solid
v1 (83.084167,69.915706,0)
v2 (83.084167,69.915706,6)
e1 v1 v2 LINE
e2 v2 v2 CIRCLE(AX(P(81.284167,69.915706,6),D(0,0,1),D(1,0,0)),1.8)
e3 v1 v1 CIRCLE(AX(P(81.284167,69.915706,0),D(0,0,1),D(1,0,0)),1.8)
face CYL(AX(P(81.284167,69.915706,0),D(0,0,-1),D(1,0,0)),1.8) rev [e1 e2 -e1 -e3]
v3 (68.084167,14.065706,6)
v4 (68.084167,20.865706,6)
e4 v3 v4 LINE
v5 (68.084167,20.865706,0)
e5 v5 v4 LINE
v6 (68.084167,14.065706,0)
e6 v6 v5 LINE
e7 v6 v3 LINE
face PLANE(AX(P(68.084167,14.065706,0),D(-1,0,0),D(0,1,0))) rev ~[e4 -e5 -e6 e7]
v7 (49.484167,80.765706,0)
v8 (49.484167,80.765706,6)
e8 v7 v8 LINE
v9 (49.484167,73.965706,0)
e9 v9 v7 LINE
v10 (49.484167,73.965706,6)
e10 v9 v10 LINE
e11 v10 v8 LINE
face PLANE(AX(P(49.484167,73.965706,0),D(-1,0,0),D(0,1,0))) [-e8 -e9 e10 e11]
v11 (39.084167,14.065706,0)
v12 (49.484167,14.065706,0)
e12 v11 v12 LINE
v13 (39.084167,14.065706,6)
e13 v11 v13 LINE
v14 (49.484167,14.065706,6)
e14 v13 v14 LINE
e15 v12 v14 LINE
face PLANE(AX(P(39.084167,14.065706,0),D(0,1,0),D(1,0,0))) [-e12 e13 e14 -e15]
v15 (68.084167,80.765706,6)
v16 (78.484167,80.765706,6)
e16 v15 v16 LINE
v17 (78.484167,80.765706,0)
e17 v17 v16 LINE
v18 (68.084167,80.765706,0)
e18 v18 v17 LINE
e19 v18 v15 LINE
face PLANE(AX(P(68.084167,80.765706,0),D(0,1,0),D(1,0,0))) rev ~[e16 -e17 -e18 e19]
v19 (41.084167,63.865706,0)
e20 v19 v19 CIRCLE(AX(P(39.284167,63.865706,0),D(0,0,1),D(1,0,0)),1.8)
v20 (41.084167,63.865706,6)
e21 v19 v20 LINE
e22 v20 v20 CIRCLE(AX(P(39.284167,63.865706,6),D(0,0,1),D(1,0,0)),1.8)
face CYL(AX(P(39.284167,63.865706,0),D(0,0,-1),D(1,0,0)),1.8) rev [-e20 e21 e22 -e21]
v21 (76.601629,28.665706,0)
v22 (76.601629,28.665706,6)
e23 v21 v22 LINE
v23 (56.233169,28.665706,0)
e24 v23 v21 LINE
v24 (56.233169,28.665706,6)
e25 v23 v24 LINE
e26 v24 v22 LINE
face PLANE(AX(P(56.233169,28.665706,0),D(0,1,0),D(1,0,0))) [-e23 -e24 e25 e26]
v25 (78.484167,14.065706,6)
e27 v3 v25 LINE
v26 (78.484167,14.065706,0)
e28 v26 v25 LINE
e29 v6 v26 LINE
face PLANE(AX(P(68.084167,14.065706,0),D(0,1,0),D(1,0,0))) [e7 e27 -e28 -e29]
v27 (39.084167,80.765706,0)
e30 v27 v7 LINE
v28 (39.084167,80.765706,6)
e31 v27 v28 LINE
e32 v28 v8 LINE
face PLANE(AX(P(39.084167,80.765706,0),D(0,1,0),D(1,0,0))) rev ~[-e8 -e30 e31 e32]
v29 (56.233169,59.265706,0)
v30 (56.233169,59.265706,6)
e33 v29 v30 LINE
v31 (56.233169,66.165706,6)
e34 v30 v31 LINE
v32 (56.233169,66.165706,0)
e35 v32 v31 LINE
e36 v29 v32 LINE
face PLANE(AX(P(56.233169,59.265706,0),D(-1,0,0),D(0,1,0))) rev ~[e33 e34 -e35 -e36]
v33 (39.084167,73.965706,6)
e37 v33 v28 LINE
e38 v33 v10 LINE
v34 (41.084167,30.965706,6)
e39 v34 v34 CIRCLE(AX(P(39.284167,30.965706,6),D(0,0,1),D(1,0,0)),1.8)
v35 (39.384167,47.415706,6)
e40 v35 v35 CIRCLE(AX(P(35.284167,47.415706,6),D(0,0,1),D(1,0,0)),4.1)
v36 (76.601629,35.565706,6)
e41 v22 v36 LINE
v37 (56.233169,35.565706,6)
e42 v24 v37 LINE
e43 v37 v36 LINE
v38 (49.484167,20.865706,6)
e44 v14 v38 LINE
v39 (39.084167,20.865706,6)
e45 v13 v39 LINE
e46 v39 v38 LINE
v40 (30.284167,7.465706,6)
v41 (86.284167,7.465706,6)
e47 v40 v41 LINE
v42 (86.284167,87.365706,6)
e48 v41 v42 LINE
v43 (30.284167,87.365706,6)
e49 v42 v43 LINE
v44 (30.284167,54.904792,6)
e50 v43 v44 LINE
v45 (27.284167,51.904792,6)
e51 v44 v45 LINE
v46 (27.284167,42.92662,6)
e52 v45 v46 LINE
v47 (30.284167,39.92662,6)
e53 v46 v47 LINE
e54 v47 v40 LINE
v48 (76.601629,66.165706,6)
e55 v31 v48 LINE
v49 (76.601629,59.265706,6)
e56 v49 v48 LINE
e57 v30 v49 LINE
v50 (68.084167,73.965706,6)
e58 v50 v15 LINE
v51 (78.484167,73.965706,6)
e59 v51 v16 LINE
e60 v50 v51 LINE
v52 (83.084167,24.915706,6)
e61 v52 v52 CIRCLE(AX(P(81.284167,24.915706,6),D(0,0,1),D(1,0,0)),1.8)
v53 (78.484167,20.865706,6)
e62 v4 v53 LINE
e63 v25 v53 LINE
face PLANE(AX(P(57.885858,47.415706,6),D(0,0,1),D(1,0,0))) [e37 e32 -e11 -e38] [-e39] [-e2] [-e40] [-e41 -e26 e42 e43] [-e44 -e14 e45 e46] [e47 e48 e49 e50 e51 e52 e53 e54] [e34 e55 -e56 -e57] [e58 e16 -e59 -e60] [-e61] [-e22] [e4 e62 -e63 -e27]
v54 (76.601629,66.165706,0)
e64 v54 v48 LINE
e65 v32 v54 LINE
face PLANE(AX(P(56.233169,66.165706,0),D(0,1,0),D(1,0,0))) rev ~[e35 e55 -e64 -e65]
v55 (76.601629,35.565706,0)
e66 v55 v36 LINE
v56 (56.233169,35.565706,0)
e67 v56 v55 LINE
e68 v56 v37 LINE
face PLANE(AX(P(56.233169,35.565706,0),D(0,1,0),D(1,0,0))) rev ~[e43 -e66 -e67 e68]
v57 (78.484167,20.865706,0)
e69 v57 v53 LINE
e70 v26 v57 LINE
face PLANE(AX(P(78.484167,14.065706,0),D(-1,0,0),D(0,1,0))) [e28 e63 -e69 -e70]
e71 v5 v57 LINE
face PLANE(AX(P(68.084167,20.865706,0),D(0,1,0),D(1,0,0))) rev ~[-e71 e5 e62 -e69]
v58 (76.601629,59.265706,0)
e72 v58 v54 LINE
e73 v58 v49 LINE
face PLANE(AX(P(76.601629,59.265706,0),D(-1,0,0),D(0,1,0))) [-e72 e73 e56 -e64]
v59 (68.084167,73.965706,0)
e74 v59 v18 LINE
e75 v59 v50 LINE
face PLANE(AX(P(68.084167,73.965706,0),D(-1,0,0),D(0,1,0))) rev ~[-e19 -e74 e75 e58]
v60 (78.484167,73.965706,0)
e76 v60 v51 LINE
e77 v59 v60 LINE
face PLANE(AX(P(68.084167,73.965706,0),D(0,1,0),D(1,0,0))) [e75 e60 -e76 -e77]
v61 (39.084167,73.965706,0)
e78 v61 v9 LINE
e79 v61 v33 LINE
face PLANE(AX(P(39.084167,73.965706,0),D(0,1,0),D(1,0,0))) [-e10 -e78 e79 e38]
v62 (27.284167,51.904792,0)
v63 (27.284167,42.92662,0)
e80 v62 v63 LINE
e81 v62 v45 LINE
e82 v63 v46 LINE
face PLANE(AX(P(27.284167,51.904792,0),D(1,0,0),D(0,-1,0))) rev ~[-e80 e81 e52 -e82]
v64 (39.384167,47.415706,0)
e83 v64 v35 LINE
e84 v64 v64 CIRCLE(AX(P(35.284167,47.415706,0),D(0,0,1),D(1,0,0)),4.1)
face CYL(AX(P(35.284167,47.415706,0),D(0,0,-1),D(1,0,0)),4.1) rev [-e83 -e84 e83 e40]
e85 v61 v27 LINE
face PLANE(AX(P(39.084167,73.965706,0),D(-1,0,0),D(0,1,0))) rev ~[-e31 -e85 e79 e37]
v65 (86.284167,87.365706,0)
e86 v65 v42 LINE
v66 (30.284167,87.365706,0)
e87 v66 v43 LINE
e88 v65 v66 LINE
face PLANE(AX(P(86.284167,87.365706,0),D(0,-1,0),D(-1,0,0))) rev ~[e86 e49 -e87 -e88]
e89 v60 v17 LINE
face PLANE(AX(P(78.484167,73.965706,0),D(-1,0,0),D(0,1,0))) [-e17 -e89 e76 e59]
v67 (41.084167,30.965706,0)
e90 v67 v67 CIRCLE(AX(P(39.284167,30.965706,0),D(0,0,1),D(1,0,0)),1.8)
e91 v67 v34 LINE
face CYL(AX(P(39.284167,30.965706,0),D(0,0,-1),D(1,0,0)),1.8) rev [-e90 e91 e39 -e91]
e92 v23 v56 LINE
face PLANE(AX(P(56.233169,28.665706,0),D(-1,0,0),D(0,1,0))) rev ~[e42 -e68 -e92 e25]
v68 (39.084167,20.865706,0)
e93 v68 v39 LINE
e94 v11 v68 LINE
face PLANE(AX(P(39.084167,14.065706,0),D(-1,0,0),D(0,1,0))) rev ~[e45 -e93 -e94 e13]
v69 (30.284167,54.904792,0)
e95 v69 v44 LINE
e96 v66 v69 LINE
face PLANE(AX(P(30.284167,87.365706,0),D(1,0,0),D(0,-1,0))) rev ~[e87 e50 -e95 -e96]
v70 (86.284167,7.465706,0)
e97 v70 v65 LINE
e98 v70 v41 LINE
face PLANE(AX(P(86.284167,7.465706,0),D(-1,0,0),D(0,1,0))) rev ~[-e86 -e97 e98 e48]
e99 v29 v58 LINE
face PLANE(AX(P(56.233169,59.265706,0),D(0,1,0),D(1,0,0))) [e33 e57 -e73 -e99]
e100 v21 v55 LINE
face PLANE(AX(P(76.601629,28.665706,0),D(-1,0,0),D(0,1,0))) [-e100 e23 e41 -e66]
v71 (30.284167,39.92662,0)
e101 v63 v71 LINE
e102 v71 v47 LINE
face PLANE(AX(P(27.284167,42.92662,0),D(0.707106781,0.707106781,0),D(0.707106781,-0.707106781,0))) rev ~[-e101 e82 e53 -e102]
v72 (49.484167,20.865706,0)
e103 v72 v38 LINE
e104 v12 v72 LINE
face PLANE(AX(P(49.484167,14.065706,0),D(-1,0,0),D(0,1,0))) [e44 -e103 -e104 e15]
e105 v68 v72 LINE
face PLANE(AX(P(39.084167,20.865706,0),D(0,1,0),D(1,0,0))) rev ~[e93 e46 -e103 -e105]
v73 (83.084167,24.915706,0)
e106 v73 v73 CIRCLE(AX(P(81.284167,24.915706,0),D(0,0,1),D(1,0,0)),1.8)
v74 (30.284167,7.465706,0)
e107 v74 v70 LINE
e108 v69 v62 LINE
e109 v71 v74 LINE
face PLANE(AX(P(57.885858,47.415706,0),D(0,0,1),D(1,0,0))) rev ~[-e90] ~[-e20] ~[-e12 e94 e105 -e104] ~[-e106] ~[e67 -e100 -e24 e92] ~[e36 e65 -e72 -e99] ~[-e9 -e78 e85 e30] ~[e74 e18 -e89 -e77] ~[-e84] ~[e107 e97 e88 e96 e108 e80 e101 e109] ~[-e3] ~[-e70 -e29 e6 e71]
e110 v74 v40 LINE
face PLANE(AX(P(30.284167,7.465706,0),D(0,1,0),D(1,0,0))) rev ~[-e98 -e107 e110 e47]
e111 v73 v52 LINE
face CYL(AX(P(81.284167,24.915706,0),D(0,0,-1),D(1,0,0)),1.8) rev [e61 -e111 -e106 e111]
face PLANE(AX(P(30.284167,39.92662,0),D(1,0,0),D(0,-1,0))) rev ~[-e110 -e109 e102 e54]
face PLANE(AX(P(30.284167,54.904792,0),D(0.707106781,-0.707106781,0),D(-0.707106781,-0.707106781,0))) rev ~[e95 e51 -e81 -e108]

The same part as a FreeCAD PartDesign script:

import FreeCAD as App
import Part
import Sketcher
Q = App.Units.Quantity


def add_polygon(sketch, points):
    """Adds a closed chain of lines whose ends are joined by coincident constraints."""
    first, n = sketch.GeometryCount, len(points)
    for a, b in zip(points, points[1:] + points[:1]):
        sketch.addGeometry(Part.LineSegment(App.Vector(*a, 0), App.Vector(*b, 0)), False)
    for i in range(n):
        sketch.addConstraint(Sketcher.Constraint("Coincident", first + i, 2, first + (i + 1) % n, 1))

doc = App.newDocument("Part")
body = doc.addObject("PartDesign::Body", "Body")

sketch1 = body.newObject("Sketcher::SketchObject", "Sketch")
sketch1.AttachmentSupport = (doc.getObject("XY_Plane"), [""])
sketch1.MapMode = "FlatFace"
add_polygon(sketch1, [(86.3, 87.4), (30.3, 87.4), (30.3, 54.9), (27.3, 51.9), (27.3, 42.9), (30.3, 39.9), (30.3, 7.5), (86.3, 7.5)])
add_polygon(sketch1, [(49.5, 14.1), (39.1, 14.1), (39.1, 20.9), (49.5, 20.9)])
sketch1.addGeometry(Part.Circle(App.Vector(39.3, 31, 0), App.Vector(0, 0, 1), 1.8), False)
add_polygon(sketch1, [(78.5, 14.1), (68.1, 14.1), (68.1, 20.9), (78.5, 20.9)])
sketch1.addGeometry(Part.Circle(App.Vector(81.3, 24.9, 0), App.Vector(0, 0, 1), 1.8), False)
add_polygon(sketch1, [(76.6, 28.7), (56.2, 28.7), (56.2, 35.6), (76.6, 35.6)])
sketch1.addGeometry(Part.Circle(App.Vector(35.3, 47.4, 0), App.Vector(0, 0, 1), 4.1), False)
sketch1.addGeometry(Part.Circle(App.Vector(39.3, 63.9, 0), App.Vector(0, 0, 1), 1.8), False)
add_polygon(sketch1, [(49.5, 74), (39.1, 74), (39.1, 80.8), (49.5, 80.8)])
add_polygon(sketch1, [(76.6, 59.3), (56.2, 59.3), (56.2, 66.2), (76.6, 66.2)])
sketch1.addGeometry(Part.Circle(App.Vector(81.3, 69.9, 0), App.Vector(0, 0, 1), 1.8), False)
add_polygon(sketch1, [(78.5, 74), (68.1, 74), (68.1, 80.8), (78.5, 80.8)])
sketch1.addConstraint(Sketcher.Constraint("Horizontal", 0))
sketch1.addConstraint(Sketcher.Constraint("Vertical", 1))
sketch1.addConstraint(Sketcher.Constraint("Vertical", 3))
sketch1.addConstraint(Sketcher.Constraint("Vertical", 5))
sketch1.addConstraint(Sketcher.Constraint("Horizontal", 6))
sketch1.addConstraint(Sketcher.Constraint("Vertical", 7))
sketch1.addConstraint(Sketcher.Constraint("Horizontal", 8))
sketch1.addConstraint(Sketcher.Constraint("Vertical", 9))
sketch1.addConstraint(Sketcher.Constraint("Horizontal", 10))
sketch1.addConstraint(Sketcher.Constraint("Vertical", 11))
sketch1.addConstraint(Sketcher.Constraint("Horizontal", 13))
sketch1.addConstraint(Sketcher.Constraint("Vertical", 14))
sketch1.addConstraint(Sketcher.Constraint("Horizontal", 15))
sketch1.addConstraint(Sketcher.Constraint("Vertical", 16))
sketch1.addConstraint(Sketcher.Constraint("Horizontal", 18))
sketch1.addConstraint(Sketcher.Constraint("Vertical", 19))
sketch1.addConstraint(Sketcher.Constraint("Horizontal", 20))
sketch1.addConstraint(Sketcher.Constraint("Vertical", 21))
sketch1.addConstraint(Sketcher.Constraint("Horizontal", 24))
sketch1.addConstraint(Sketcher.Constraint("Vertical", 25))
sketch1.addConstraint(Sketcher.Constraint("Horizontal", 26))
sketch1.addConstraint(Sketcher.Constraint("Vertical", 27))
sketch1.addConstraint(Sketcher.Constraint("Horizontal", 28))
sketch1.addConstraint(Sketcher.Constraint("Vertical", 29))
sketch1.addConstraint(Sketcher.Constraint("Horizontal", 30))
sketch1.addConstraint(Sketcher.Constraint("Vertical", 31))
sketch1.addConstraint(Sketcher.Constraint("Horizontal", 33))
sketch1.addConstraint(Sketcher.Constraint("Vertical", 34))
sketch1.addConstraint(Sketcher.Constraint("Horizontal", 35))
sketch1.addConstraint(Sketcher.Constraint("Vertical", 36))
sketch1.addConstraint(Sketcher.Constraint("Equal", 12, 17))
sketch1.addConstraint(Sketcher.Constraint("Equal", 17, 23))
sketch1.addConstraint(Sketcher.Constraint("Equal", 23, 32))
sketch1.addConstraint(Sketcher.Constraint("Perpendicular", 2, 4))
sketch1.addConstraint(Sketcher.Constraint("Horizontal", 11, 2, 13, 2))
sketch1.addConstraint(Sketcher.Constraint("Horizontal", 10, 2, 14, 2))
sketch1.addConstraint(Sketcher.Constraint("Horizontal", 27, 2, 33, 2))
sketch1.addConstraint(Sketcher.Constraint("Horizontal", 26, 2, 34, 2))
sketch1.addConstraint(Sketcher.Constraint("Vertical", 12, 3, 23, 3))
sketch1.addConstraint(Sketcher.Constraint("Vertical", 17, 3, 32, 3))
sketch1.addConstraint(Sketcher.Constraint("Vertical", 1, 2, 4, 2))
sketch1.addConstraint(Sketcher.Constraint("Vertical", 9, 2, 24, 2))
sketch1.addConstraint(Sketcher.Constraint("Vertical", 11, 2, 26, 2))
sketch1.addConstraint(Sketcher.Constraint("Vertical", 19, 2, 28, 2))
sketch1.addConstraint(Sketcher.Constraint("Vertical", 21, 2, 30, 2))
sketch1.addConstraint(Sketcher.Constraint("Vertical", 14, 2, 33, 2))
sketch1.addConstraint(Sketcher.Constraint("Vertical", 16, 2, 35, 2))
sketch1.addConstraint(Sketcher.Constraint("Equal", 10, 13))
sketch1.addConstraint(Sketcher.Constraint("Equal", 1, 5))
sketch1.addConstraint(Sketcher.Constraint("Equal", 16, 25))
sketch1.addConstraint(Sketcher.Constraint("Equal", 21, 29))
sketch1.addConstraint(Sketcher.Constraint("Equal", 2, 4))
sketch1.addConstraint(Sketcher.Constraint("Diameter", 12, Q("3.6 mm")))
sketch1.addConstraint(Sketcher.Constraint("Diameter", 22, Q("8.2 mm")))
sketch1.addConstraint(Sketcher.Constraint("DistanceX", 0, 2, 0, 1, Q("56 mm")))
sketch1.addConstraint(Sketcher.Constraint("DistanceX", 8, 2, 8, 1, Q("10.4 mm")))
sketch1.addConstraint(Sketcher.Constraint("DistanceY", 7, 1, 7, 2, Q("79.9 mm")))
sketch1.addConstraint(Sketcher.Constraint("DistanceY", 9, 1, 9, 2, Q("6.8 mm")))
sketch1.addConstraint(Sketcher.Constraint("DistanceY", 19, 1, 19, 2, Q("6.9 mm")))
sketch1.addConstraint(Sketcher.Constraint("DistanceX", 12, 3, 17, 3, Q("42 mm")))
sketch1.addConstraint(Sketcher.Constraint("DistanceX", 22, 3, 12, 3, Q("4 mm")))
sketch1.addConstraint(Sketcher.Constraint("DistanceY", 17, 3, 32, 3, Q("45 mm")))
sketch1.addConstraint(Sketcher.Constraint("DistanceX", 0, 2, 23, 3, Q("9 mm")))
sketch1.addConstraint(Sketcher.Constraint("DistanceX", 2, 2, 1, 2, Q("3 mm")))
sketch1.addConstraint(Sketcher.Constraint("DistanceX", 8, 2, 13, 2, Q("29 mm")))
sketch1.addConstraint(Sketcher.Constraint("DistanceY", 17, 3, 22, 3, Q("22.5 mm")))
sketch1.addConstraint(Sketcher.Constraint("DistanceY", 12, 3, 23, 3, Q("32.9 mm")))
sketch1.addConstraint(Sketcher.Constraint("DistanceY", 23, 3, 0, 2, Q("23.5 mm")))
sketch1.addConstraint(Sketcher.Constraint("DistanceX", 5, 2, 8, 2, Q("8.8 mm")))
sketch1.addConstraint(Sketcher.Constraint("DistanceY", 5, 2, 8, 2, Q("6.6 mm")))
sketch1.addConstraint(Sketcher.Constraint("DistanceY", 10, 2, 18, 2, Q("7.8 mm")))
sketch1.addConstraint(Sketcher.Constraint("DistanceY", 23, 3, 24, 2, Q("10.1 mm")))
sketch1.addConstraint(Sketcher.Constraint("DistanceY", 28, 2, 27, 2, Q("14.7 mm")))
sketch1.addConstraint(Sketcher.Constraint("DistanceY", 17, 3, 12, 3, Q("6.05 mm")))
sketch1.addConstraint(Sketcher.Constraint("DistanceX", 10, 2, 18, 2, Q("6.749002 mm")))
sketch1.addConstraint(Sketcher.Constraint("DistanceX", 18, 2, 18, 1, Q("20.368459 mm")))
sketch1.addConstraint(Sketcher.Constraint("DistanceY", 1, 2, 1, 1, Q("32.460914 mm")))
sketch1.addConstraint(Sketcher.Constraint("DistanceY", -1, 1, 3, 2, Q("42.92662 mm")))
sketch1.addConstraint(Sketcher.Constraint("DistanceX", -1, 1, 18, 2, Q("56.233169 mm")))
pad1 = body.newObject("PartDesign::Pad", "Pad")
pad1.Profile = sketch1
pad1.Length = 6

doc.recompute()
